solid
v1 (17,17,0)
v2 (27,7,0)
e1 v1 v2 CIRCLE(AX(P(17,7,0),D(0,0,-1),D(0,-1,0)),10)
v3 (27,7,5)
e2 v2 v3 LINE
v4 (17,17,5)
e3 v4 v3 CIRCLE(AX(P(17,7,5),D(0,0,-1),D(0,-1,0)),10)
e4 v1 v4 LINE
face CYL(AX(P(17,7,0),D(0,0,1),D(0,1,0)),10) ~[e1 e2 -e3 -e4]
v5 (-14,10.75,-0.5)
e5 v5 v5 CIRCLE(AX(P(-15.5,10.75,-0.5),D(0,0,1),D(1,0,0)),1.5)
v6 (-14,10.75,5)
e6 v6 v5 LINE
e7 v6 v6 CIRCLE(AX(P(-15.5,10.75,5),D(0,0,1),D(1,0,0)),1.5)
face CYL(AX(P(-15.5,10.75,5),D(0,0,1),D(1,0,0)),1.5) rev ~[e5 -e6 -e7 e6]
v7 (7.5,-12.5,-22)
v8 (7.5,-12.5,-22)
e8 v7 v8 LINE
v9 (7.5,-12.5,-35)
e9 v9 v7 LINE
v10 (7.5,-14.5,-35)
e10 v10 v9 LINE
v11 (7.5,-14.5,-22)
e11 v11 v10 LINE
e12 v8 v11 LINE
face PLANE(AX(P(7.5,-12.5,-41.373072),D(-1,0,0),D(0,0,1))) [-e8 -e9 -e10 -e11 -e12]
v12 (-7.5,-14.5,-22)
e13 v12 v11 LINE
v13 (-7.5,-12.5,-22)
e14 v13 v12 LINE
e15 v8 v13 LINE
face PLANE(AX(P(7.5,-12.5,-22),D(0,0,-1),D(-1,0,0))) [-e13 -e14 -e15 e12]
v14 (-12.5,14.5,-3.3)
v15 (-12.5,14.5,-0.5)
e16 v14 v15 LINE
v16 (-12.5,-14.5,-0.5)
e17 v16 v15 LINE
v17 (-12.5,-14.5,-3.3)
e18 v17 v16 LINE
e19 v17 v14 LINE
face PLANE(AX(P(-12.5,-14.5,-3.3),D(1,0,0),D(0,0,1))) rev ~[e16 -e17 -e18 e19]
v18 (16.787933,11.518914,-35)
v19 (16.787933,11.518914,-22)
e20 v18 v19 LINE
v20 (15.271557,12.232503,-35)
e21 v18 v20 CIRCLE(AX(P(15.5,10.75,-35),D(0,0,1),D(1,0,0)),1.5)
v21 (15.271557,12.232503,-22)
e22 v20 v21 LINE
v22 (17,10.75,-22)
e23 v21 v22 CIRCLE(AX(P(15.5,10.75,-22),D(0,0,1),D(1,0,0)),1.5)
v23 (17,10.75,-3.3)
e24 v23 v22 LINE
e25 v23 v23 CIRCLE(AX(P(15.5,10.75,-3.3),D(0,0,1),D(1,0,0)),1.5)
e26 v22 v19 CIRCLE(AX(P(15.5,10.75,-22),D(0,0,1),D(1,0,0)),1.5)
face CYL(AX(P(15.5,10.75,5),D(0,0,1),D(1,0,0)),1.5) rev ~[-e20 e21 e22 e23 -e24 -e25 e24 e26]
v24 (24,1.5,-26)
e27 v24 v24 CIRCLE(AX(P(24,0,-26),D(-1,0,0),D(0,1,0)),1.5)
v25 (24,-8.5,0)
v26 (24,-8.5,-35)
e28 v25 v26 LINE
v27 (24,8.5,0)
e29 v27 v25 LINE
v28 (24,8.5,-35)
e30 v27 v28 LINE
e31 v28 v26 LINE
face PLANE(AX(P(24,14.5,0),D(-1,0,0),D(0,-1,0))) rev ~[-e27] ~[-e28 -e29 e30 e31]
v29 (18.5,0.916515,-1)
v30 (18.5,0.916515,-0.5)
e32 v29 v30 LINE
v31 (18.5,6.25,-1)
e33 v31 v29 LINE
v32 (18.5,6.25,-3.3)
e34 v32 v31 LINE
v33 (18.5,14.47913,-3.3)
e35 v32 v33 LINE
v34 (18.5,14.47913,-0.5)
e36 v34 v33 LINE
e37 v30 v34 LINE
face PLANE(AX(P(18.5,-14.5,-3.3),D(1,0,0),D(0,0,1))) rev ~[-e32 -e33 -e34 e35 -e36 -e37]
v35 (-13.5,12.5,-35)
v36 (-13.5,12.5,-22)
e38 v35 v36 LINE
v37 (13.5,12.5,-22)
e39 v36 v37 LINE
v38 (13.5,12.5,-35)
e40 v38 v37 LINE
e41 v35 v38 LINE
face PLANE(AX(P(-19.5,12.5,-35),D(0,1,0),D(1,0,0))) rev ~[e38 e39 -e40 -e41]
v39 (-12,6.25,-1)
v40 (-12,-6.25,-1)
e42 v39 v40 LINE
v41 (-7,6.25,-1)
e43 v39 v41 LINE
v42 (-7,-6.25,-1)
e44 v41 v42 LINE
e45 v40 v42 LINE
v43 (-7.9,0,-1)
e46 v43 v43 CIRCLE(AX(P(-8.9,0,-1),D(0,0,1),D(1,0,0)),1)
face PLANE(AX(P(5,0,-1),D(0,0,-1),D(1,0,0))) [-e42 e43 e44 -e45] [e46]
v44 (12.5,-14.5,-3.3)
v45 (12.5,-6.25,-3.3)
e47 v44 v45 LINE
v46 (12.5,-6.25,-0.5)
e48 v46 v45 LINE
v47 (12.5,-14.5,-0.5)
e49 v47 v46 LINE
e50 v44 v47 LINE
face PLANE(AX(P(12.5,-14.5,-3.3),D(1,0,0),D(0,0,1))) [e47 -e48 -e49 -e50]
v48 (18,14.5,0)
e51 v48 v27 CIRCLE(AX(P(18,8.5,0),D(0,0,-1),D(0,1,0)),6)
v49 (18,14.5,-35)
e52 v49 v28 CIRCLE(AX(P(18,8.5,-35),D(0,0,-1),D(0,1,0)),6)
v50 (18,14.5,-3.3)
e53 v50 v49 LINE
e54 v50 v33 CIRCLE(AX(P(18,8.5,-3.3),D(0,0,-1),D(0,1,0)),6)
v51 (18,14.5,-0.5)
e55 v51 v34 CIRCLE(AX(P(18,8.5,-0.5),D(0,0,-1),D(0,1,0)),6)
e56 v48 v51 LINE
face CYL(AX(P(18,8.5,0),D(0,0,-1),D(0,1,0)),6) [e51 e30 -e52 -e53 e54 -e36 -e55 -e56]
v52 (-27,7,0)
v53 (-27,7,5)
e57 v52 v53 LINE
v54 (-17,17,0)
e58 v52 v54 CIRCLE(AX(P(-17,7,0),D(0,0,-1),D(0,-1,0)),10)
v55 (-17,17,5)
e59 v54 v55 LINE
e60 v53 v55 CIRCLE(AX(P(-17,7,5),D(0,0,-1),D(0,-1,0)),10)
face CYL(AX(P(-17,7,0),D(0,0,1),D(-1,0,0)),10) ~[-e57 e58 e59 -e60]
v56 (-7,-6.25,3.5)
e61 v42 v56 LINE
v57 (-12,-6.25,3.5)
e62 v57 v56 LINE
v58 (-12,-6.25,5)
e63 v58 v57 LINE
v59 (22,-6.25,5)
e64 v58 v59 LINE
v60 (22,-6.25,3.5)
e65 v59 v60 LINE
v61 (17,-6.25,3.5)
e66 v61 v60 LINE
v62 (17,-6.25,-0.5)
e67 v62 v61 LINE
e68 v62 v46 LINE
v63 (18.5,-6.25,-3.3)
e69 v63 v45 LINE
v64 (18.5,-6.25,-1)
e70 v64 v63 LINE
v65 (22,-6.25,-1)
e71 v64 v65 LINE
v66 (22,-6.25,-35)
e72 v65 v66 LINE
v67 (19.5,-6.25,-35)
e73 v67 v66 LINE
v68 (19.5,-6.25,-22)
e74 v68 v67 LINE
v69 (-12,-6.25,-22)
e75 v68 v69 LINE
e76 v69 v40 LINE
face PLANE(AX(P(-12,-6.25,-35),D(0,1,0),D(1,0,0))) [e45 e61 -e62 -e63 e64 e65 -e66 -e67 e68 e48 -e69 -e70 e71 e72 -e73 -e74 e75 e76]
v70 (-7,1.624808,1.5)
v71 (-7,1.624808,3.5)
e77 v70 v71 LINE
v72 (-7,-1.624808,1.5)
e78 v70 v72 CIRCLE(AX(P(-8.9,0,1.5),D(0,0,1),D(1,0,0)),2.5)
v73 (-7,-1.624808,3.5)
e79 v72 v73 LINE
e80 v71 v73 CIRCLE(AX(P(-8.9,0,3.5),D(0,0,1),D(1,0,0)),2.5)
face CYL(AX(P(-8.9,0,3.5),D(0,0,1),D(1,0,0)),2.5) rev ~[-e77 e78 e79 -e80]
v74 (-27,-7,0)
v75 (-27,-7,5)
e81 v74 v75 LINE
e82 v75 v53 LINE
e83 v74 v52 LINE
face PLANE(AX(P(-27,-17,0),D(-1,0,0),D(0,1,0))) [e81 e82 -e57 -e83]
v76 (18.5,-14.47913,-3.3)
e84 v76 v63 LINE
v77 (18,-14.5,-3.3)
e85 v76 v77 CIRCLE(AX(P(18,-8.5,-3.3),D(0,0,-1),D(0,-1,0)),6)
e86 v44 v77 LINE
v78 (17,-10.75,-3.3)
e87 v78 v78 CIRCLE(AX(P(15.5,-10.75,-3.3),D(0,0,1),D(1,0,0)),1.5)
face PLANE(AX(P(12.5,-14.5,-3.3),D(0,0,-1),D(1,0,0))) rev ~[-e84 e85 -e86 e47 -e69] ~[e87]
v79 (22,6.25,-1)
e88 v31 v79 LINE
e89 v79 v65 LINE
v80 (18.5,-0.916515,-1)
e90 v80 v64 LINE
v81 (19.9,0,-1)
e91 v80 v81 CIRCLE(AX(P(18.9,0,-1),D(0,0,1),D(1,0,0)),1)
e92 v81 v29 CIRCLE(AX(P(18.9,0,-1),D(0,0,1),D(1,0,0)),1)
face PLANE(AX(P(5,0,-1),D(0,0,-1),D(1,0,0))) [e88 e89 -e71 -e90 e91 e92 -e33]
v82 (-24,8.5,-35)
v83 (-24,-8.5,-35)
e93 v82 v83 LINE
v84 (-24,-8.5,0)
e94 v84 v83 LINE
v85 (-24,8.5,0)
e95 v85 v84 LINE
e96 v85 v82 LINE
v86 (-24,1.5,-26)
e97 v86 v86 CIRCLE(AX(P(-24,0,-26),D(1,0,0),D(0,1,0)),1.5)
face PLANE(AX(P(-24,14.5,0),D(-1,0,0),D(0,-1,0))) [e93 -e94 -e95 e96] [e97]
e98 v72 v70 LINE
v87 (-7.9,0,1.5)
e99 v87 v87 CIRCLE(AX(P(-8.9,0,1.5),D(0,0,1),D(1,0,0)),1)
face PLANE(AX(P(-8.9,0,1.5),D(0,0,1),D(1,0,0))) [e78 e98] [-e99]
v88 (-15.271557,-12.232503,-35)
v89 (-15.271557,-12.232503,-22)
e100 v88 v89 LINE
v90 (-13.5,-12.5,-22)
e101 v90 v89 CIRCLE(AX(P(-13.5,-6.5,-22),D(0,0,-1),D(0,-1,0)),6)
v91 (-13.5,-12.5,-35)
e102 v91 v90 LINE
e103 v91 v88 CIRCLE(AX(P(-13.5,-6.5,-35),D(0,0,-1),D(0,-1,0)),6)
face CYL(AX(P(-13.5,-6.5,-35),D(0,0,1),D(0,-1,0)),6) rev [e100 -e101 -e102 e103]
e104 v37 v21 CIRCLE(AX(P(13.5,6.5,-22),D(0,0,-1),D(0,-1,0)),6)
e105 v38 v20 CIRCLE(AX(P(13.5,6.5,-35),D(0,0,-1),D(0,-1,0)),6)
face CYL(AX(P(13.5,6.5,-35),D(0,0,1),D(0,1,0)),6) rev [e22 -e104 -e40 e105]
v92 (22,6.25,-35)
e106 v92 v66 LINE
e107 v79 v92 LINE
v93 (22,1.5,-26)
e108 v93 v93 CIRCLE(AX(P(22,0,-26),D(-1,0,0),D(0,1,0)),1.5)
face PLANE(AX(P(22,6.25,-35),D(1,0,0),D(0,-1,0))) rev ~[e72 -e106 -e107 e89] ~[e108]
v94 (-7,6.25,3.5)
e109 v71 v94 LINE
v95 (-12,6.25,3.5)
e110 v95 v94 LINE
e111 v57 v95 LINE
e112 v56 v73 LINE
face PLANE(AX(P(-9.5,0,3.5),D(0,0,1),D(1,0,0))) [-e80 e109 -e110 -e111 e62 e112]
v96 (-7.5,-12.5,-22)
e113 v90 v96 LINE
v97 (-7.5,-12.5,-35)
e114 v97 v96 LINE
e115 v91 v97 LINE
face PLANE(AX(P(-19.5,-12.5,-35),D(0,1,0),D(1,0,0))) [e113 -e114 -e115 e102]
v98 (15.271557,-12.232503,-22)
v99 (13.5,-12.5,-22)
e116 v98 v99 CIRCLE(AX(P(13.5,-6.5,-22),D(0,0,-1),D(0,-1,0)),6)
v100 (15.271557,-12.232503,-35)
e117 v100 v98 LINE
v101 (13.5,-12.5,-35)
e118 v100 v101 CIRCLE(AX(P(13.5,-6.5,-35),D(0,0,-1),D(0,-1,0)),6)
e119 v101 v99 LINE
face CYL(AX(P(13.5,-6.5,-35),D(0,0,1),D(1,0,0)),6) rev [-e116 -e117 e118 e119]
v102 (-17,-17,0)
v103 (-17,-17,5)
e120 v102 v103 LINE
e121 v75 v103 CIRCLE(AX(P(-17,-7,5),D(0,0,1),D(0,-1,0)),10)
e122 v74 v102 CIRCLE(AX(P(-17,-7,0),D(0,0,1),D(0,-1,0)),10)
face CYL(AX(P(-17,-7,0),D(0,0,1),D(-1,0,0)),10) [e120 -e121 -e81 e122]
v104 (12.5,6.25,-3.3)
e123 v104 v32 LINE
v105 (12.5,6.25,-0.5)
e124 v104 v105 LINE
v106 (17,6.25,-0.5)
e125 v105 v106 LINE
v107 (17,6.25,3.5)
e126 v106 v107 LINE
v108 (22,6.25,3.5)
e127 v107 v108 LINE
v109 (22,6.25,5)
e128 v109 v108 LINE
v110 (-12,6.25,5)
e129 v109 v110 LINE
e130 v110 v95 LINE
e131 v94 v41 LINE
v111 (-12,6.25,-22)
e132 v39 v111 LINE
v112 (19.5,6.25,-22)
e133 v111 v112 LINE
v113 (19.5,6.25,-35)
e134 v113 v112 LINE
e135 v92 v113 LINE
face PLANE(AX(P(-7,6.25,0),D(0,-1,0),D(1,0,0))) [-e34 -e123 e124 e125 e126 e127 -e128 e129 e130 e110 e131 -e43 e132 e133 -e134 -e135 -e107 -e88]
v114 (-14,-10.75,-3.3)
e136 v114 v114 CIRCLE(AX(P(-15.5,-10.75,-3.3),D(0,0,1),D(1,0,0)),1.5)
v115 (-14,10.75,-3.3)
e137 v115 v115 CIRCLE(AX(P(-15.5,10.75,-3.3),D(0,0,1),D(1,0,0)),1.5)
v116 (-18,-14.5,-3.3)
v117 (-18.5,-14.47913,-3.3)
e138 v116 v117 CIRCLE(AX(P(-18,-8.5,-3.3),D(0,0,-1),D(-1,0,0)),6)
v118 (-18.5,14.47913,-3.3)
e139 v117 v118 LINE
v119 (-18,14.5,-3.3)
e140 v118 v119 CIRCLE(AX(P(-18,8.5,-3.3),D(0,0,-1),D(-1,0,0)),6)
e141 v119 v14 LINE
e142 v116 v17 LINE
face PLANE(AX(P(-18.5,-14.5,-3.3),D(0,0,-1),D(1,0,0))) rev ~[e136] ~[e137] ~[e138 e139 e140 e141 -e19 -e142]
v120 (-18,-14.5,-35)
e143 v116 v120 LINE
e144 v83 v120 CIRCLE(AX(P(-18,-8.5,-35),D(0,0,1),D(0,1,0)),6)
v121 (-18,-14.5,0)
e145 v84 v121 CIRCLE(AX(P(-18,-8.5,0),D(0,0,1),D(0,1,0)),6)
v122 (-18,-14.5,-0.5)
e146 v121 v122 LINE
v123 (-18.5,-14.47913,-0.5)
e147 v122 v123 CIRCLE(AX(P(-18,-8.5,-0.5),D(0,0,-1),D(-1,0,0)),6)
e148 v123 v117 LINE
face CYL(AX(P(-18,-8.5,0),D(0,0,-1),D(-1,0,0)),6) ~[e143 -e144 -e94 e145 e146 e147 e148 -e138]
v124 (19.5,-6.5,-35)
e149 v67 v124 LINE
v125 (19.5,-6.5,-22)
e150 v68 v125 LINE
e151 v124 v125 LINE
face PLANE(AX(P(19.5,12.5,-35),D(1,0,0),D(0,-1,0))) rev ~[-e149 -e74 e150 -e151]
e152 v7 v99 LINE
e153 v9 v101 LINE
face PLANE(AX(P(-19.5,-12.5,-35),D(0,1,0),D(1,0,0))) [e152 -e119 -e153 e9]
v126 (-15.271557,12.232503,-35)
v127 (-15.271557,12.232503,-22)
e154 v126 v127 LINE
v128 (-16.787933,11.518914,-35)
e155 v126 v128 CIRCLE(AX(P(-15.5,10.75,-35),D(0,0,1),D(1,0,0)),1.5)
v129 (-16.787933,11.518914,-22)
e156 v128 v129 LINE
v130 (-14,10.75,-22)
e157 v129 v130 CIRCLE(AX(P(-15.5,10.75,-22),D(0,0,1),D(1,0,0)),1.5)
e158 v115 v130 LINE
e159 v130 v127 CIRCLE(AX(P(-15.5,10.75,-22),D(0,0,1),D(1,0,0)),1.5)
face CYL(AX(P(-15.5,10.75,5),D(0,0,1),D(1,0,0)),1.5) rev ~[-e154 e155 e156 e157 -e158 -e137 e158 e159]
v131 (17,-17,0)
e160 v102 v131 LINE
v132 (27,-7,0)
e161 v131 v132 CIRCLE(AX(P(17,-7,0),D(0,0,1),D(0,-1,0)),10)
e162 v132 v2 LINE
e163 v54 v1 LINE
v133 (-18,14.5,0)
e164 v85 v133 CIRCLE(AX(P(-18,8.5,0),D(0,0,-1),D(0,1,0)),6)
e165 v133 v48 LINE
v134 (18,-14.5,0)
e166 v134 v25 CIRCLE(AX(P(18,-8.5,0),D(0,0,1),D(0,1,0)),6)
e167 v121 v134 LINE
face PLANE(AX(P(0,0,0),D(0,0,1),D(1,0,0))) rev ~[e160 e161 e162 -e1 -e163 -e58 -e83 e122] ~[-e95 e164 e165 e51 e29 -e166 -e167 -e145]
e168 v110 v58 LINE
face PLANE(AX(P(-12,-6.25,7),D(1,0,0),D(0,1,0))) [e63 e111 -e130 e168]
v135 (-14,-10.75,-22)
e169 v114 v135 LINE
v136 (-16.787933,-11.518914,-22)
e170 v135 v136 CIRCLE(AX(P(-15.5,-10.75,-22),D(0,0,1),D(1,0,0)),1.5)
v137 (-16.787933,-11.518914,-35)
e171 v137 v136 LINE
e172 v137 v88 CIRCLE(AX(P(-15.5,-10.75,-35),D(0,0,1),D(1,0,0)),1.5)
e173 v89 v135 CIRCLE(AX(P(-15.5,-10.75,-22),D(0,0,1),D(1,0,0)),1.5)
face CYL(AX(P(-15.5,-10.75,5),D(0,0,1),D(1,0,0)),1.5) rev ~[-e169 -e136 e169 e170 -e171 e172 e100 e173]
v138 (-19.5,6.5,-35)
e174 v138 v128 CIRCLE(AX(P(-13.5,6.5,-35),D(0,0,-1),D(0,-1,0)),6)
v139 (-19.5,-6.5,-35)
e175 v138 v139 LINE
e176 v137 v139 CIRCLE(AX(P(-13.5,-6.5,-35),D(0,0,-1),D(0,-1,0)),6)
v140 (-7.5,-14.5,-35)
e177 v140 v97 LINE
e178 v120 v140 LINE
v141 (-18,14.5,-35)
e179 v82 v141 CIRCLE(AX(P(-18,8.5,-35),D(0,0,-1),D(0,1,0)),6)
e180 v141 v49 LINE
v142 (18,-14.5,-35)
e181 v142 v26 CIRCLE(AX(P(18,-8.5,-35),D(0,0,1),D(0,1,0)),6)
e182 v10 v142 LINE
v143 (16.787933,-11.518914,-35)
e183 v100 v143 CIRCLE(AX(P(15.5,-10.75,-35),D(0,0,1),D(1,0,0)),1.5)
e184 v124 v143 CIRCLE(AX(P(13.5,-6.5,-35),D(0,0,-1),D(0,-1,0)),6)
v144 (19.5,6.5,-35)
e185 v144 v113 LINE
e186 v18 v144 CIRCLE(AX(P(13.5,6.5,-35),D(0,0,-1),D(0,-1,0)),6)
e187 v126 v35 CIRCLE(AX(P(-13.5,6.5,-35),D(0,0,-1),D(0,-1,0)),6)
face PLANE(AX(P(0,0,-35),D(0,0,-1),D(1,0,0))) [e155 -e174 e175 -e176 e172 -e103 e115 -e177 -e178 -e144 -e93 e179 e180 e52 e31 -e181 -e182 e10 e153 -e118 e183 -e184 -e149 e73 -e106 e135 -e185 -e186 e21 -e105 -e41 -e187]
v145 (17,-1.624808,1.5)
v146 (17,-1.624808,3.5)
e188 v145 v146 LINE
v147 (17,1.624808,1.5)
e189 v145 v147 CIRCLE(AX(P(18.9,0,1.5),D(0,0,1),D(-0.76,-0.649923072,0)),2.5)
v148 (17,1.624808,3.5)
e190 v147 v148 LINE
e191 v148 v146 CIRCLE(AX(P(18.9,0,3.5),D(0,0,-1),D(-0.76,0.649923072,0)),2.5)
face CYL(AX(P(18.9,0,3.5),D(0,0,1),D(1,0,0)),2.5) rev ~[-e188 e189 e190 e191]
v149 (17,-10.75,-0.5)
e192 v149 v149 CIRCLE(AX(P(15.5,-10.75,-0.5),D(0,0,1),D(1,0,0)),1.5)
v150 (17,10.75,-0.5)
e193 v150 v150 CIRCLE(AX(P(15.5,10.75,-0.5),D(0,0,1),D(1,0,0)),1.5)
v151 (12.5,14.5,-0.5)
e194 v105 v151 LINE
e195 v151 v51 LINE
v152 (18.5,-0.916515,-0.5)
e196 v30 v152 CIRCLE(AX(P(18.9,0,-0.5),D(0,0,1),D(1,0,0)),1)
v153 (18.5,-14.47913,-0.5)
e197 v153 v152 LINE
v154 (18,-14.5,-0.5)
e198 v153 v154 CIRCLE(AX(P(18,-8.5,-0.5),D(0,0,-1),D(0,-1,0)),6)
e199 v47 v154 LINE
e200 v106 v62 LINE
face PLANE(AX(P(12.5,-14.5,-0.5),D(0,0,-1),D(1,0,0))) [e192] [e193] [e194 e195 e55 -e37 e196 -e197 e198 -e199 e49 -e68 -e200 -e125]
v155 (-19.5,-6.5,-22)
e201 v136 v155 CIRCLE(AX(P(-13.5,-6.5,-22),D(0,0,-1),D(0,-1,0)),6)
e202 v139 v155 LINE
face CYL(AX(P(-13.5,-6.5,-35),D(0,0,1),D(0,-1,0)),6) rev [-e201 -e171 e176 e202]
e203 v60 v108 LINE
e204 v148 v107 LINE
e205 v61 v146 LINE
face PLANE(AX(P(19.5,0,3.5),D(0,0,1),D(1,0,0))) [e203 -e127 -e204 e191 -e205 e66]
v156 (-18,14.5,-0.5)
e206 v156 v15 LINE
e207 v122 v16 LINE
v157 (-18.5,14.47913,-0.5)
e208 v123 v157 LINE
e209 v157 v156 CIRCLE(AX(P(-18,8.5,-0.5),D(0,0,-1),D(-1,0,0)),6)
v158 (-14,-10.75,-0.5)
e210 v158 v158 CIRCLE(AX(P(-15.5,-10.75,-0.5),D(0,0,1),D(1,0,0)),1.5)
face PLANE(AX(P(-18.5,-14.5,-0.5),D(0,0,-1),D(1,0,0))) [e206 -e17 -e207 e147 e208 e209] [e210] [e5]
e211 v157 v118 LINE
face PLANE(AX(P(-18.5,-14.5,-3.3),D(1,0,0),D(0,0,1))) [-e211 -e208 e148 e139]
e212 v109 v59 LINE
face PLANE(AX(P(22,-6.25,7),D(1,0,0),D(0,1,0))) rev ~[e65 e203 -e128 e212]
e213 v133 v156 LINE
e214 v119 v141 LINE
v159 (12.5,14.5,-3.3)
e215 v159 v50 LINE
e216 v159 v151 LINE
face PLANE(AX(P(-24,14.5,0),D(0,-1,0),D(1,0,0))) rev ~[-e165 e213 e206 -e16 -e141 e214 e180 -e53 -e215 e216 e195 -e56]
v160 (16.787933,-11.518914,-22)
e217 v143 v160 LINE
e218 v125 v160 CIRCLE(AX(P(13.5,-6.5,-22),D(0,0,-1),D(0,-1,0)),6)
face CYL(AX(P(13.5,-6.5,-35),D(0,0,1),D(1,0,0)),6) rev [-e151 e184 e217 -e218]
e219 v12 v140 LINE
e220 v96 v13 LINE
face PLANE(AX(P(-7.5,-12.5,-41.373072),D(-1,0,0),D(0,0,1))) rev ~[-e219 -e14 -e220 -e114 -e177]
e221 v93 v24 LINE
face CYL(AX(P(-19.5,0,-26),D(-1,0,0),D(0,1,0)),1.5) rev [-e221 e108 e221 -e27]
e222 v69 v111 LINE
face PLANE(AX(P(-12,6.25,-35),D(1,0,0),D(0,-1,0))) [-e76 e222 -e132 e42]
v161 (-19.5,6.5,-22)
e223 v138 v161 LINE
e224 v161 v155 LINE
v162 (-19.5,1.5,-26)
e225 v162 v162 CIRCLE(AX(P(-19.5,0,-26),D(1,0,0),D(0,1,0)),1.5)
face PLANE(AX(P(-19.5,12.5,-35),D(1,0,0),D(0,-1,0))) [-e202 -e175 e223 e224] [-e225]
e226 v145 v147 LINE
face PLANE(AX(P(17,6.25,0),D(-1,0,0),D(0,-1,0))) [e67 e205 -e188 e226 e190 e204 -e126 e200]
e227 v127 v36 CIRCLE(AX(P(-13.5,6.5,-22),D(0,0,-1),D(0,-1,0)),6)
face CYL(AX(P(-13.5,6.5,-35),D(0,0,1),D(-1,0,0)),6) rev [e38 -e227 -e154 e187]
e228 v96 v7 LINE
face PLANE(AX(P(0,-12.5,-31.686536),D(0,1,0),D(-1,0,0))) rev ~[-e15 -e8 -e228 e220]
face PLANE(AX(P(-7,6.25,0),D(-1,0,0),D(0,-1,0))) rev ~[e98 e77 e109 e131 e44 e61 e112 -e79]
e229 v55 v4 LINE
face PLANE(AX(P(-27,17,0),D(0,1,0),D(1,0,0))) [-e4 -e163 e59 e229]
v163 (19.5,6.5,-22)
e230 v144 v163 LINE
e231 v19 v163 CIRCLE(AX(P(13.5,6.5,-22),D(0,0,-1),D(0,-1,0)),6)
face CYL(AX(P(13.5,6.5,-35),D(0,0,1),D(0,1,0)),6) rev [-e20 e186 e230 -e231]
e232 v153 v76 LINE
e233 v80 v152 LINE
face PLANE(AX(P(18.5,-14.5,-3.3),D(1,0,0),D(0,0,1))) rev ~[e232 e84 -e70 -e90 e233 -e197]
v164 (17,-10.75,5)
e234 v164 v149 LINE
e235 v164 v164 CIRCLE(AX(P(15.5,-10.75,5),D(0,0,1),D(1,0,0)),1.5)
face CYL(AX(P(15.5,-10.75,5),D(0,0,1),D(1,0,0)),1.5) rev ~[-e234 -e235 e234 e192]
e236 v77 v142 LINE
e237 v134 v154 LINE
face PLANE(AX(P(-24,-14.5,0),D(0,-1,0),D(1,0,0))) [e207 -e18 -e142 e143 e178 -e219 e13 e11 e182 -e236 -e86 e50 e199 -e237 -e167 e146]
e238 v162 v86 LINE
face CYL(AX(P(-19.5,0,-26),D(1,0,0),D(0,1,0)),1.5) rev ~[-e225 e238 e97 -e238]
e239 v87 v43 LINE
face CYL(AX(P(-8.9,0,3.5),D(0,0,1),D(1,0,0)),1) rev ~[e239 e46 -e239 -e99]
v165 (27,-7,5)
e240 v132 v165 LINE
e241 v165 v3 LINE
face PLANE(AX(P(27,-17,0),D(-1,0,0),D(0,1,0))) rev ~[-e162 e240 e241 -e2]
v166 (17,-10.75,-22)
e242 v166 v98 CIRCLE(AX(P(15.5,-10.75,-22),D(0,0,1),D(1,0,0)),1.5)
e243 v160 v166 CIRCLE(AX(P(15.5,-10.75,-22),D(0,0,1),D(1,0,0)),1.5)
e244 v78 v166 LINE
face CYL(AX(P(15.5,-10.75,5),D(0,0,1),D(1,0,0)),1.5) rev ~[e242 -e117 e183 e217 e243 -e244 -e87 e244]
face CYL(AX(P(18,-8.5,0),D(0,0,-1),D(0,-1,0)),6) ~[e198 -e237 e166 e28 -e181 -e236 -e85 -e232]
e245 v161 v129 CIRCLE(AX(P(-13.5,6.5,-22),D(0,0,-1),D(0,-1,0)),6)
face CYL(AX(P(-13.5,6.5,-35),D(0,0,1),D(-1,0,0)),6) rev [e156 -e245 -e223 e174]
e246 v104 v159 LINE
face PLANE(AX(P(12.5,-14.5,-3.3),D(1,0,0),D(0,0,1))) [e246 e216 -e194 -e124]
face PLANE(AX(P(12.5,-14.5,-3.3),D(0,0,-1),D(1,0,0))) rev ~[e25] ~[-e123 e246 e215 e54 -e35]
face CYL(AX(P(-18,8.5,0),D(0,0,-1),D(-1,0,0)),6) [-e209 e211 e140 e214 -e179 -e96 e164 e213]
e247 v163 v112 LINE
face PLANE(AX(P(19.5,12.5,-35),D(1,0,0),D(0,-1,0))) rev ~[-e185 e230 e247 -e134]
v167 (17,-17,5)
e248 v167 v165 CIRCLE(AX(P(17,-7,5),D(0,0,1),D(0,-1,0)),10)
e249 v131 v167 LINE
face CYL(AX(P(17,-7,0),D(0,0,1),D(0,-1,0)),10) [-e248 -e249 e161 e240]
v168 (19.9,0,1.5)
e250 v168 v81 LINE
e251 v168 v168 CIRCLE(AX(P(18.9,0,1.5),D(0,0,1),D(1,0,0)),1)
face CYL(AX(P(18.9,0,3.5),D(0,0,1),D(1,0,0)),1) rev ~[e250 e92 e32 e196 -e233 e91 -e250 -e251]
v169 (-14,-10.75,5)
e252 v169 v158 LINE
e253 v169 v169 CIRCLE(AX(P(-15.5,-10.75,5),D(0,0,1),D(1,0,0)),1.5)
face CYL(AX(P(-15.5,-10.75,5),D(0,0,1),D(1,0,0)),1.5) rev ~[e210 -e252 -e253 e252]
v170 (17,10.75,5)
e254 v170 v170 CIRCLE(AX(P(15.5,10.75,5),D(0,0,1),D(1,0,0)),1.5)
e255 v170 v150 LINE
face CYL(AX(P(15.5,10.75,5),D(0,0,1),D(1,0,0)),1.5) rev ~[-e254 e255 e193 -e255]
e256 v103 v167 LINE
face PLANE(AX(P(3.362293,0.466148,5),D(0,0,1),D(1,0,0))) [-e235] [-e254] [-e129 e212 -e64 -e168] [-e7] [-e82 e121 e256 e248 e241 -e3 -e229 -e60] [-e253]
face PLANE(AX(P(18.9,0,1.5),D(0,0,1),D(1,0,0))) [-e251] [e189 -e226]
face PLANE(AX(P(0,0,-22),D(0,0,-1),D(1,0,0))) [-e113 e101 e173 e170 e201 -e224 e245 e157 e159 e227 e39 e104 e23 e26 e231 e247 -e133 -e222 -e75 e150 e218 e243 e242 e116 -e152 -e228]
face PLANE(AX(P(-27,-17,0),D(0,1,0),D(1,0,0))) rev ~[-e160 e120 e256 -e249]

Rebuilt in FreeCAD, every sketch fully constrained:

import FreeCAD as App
import Part
import Sketcher

V = App.Vector


def edges_at(feature, points):
    """Names of the edges that pass closest to the given points."""
    edges = feature.Shape.Edges
    near = lambda p: min(range(len(edges)), key=lambda i: edges[i].distToShape(Part.Vertex(*p))[0])
    return sorted({f"Edge{near(p) + 1}" for p in points})

doc = App.newDocument("Part")
params = doc.addObject("Spreadsheet::Sheet", "Params")
for row, (alias, value) in enumerate([
    ("sketch1_width", "54 mm"),
    ("sketch1_width2", "24 mm"),
    ("sketch1_height", "34 mm"),
    ("sketch1_height2", "12.5 mm"),
    ("pad1_length", "7 mm"),
    ("sketch2_width", "5 mm"),
    ("sketch2_height", "12.5 mm"),
    ("pocket1_length", "3.5 mm"),
    ("sketch3_width", "48 mm"),
    ("sketch3_width2", "24 mm"),
    ("sketch3_height", "29 mm"),
    ("sketch3_height2", "12.5 mm"),
    ("pad2_length", "35 mm"),
    ("sketch4_diameter", "2 mm"),
    ("sketch5_width", "34 mm"),
    ("sketch5_height", "12.5 mm"),
    ("pocket3_length", "30 mm"),
    ("sketch6_width", "39 mm"),
    ("sketch6_height", "25 mm"),
    ("pocket4_length", "13 mm"),
    ("fillet_radius", "6 mm"),
    ("sketch7_diameter", "3 mm"),
    ("pocket6_length", "2 mm"),
    ("sketch9_width", "34 mm"),
    ("sketch9_height", "12.5 mm"),
    ("pocket7_length", "4 mm"),
    ("sketch10_width", "15 mm"),
    ("pocket8_length", "5 mm"),
    ("sketch11_diameter", "3 mm"),
    ("sketch12_width", "6 mm"),
    ("sketch12_height", "2.8 mm"),
    ("fillet2_radius", "10 mm"),
    ("sketch13_diameter", "5 mm"),
    ("pocket11_length", "2 mm"),
], start=1):
    params.set(f"A{row}", alias)
    params.set(f"B{row}", "=" + value)
    params.setAlias(f"B{row}", alias)

body = doc.addObject("PartDesign::Body", "Body")

# Sketch on XY plane
sketch1 = body.newObject("Sketcher::SketchObject", "Sketch")
sketch1.AttachmentSupport = (doc.getObject("XY_Plane"), [""])
sketch1.MapMode = "FlatFace"
sketch1.addGeometry(Part.LineSegment(V(-27, 17, 0), V(-27, -17, 0)), False)
sketch1.addGeometry(Part.LineSegment(V(-27, -17, 0), V(27, -17, 0)), False)
sketch1.addGeometry(Part.LineSegment(V(27, -17, 0), V(27, 17, 0)), False)
sketch1.addGeometry(Part.LineSegment(V(27, 17, 0), V(-27, 17, 0)), False)
sketch1.addGeometry(Part.LineSegment(V(17, -6.25, 0), V(-7, -6.25, 0)), False)
sketch1.addGeometry(Part.LineSegment(V(-7, -6.25, 0), V(-7, 6.25, 0)), False)
sketch1.addGeometry(Part.LineSegment(V(-7, 6.25, 0), V(17, 6.25, 0)), False)
sketch1.addGeometry(Part.LineSegment(V(17, 6.25, 0), V(17, -6.25, 0)), False)
sketch1.addConstraint(Sketcher.Constraint("Coincident", 0, 2, 1, 1))
sketch1.addConstraint(Sketcher.Constraint("Coincident", 1, 2, 2, 1))
sketch1.addConstraint(Sketcher.Constraint("Coincident", 2, 2, 3, 1))
sketch1.addConstraint(Sketcher.Constraint("Coincident", 3, 2, 0, 1))
sketch1.addConstraint(Sketcher.Constraint("Coincident", 4, 2, 5, 1))
sketch1.addConstraint(Sketcher.Constraint("Coincident", 5, 2, 6, 1))
sketch1.addConstraint(Sketcher.Constraint("Coincident", 6, 2, 7, 1))
sketch1.addConstraint(Sketcher.Constraint("Coincident", 7, 2, 4, 1))
sketch1.addConstraint(Sketcher.Constraint("Vertical", 0))
sketch1.addConstraint(Sketcher.Constraint("Horizontal", 1))
sketch1.addConstraint(Sketcher.Constraint("Vertical", 2))
sketch1.addConstraint(Sketcher.Constraint("Horizontal", 3))
sketch1.addConstraint(Sketcher.Constraint("Horizontal", 4))
sketch1.addConstraint(Sketcher.Constraint("Vertical", 5))
sketch1.addConstraint(Sketcher.Constraint("Horizontal", 6))
sketch1.addConstraint(Sketcher.Constraint("Vertical", 7))
sketch1.addConstraint(Sketcher.Constraint("Symmetric", 0, 2, 2, 2, -1, 1))
sketch1.addConstraint(Sketcher.Constraint("DistanceX", 1, 1, 1, 2, 54.0))
sketch1.addConstraint(Sketcher.Constraint("DistanceX", 4, 2, 4, 1, 24.0))
sketch1.addConstraint(Sketcher.Constraint("DistanceY", 0, 2, 0, 1, 34.0))
sketch1.addConstraint(Sketcher.Constraint("DistanceY", 5, 1, 5, 2, 12.5))
sketch1.addConstraint(Sketcher.Constraint("DistanceX", 4, 2, -1, 1, 7.0))
sketch1.addConstraint(Sketcher.Constraint("DistanceY", 4, 2, -1, 1, 6.25))
sketch1.setExpression("Constraints[17]", "Params.sketch1_width")
sketch1.setExpression("Constraints[18]", "Params.sketch1_width2")
sketch1.setExpression("Constraints[19]", "Params.sketch1_height")
sketch1.setExpression("Constraints[20]", "Params.sketch1_height2")
pad1 = body.newObject("PartDesign::Pad", "Pad")
pad1.Profile = sketch1
pad1.setExpression("Length", "Params.pad1_length")

# Sketch on XY plane
sketch2 = body.newObject("Sketcher::SketchObject", "Sketch001")
sketch2.AttachmentSupport = (doc.getObject("XY_Plane"), [""])
sketch2.MapMode = "FlatFace"
sketch2.AttachmentOffset = App.Placement(V(0, 0, 7), App.Rotation())
sketch2.addGeometry(Part.LineSegment(V(-12, 6.25, 0), V(-12, -6.25, 0)), False)
sketch2.addGeometry(Part.LineSegment(V(-12, -6.25, 0), V(-7, -6.25, 0)), False)
sketch2.addGeometry(Part.LineSegment(V(-7, -6.25, 0), V(-7, 6.25, 0)), False)
sketch2.addGeometry(Part.LineSegment(V(-7, 6.25, 0), V(-12, 6.25, 0)), False)
sketch2.addGeometry(Part.LineSegment(V(17, 6.25, 0), V(17, -6.25, 0)), False)
sketch2.addGeometry(Part.LineSegment(V(17, -6.25, 0), V(22, -6.25, 0)), False)
sketch2.addGeometry(Part.LineSegment(V(22, -6.25, 0), V(22, 6.25, 0)), False)
sketch2.addGeometry(Part.LineSegment(V(22, 6.25, 0), V(17, 6.25, 0)), False)
sketch2.addConstraint(Sketcher.Constraint("Coincident", 0, 2, 1, 1))
sketch2.addConstraint(Sketcher.Constraint("Coincident", 1, 2, 2, 1))
sketch2.addConstraint(Sketcher.Constraint("Coincident", 2, 2, 3, 1))
sketch2.addConstraint(Sketcher.Constraint("Coincident", 3, 2, 0, 1))
sketch2.addConstraint(Sketcher.Constraint("Coincident", 4, 2, 5, 1))
sketch2.addConstraint(Sketcher.Constraint("Coincident", 5, 2, 6, 1))
sketch2.addConstraint(Sketcher.Constraint("Coincident", 6, 2, 7, 1))
sketch2.addConstraint(Sketcher.Constraint("Coincident", 7, 2, 4, 1))
sketch2.addConstraint(Sketcher.Constraint("Vertical", 0))
sketch2.addConstraint(Sketcher.Constraint("Horizontal", 1))
sketch2.addConstraint(Sketcher.Constraint("Vertical", 2))
sketch2.addConstraint(Sketcher.Constraint("Horizontal", 3))
sketch2.addConstraint(Sketcher.Constraint("Vertical", 4))
sketch2.addConstraint(Sketcher.Constraint("Horizontal", 5))
sketch2.addConstraint(Sketcher.Constraint("Vertical", 6))
sketch2.addConstraint(Sketcher.Constraint("Horizontal", 7))
sketch2.addConstraint(Sketcher.Constraint("Horizontal", 1, 2, 4, 2))
sketch2.addConstraint(Sketcher.Constraint("Horizontal", 3, 2, 6, 2))
sketch2.addConstraint(Sketcher.Constraint("Equal", 3, 5))
sketch2.addConstraint(Sketcher.Constraint("DistanceX", 1, 1, 1, 2, 5.0))
sketch2.addConstraint(Sketcher.Constraint("DistanceY", 0, 2, 0, 1, 12.5))
sketch2.addConstraint(Sketcher.Constraint("DistanceX", 0, 2, -1, 1, 12.0))
sketch2.addConstraint(Sketcher.Constraint("DistanceX", -1, 1, 4, 2, 17.0))
sketch2.addConstraint(Sketcher.Constraint("DistanceY", 0, 2, -1, 1, 6.25))
sketch2.setExpression("Constraints[19]", "Params.sketch2_width")
sketch2.setExpression("Constraints[20]", "Params.sketch2_height")
pocket1 = body.newObject("PartDesign::Pocket", "Pocket")
pocket1.Profile = sketch2
pocket1.setExpression("Length", "Params.pocket1_length")

# Sketch on XY plane
sketch3 = body.newObject("Sketcher::SketchObject", "Sketch002")
sketch3.AttachmentSupport = (doc.getObject("XY_Plane"), [""])
sketch3.MapMode = "FlatFace"
sketch3.addGeometry(Part.LineSegment(V(-24, -14.5, 0), V(-24, 14.5, 0)), False)
sketch3.addGeometry(Part.LineSegment(V(-24, 14.5, 0), V(24, 14.5, 0)), False)
sketch3.addGeometry(Part.LineSegment(V(24, 14.5, 0), V(24, -14.5, 0)), False)
sketch3.addGeometry(Part.LineSegment(V(24, -14.5, 0), V(-24, -14.5, 0)), False)
sketch3.addGeometry(Part.LineSegment(V(17, 6.25, 0), V(-7, 6.25, 0)), False)
sketch3.addGeometry(Part.LineSegment(V(-7, 6.25, 0), V(-7, -6.25, 0)), False)
sketch3.addGeometry(Part.LineSegment(V(-7, -6.25, 0), V(17, -6.25, 0)), False)
sketch3.addGeometry(Part.LineSegment(V(17, -6.25, 0), V(17, 6.25, 0)), False)
sketch3.addConstraint(Sketcher.Constraint("Coincident", 0, 2, 1, 1))
sketch3.addConstraint(Sketcher.Constraint("Coincident", 1, 2, 2, 1))
sketch3.addConstraint(Sketcher.Constraint("Coincident", 2, 2, 3, 1))
sketch3.addConstraint(Sketcher.Constraint("Coincident", 3, 2, 0, 1))
sketch3.addConstraint(Sketcher.Constraint("Coincident", 4, 2, 5, 1))
sketch3.addConstraint(Sketcher.Constraint("Coincident", 5, 2, 6, 1))
sketch3.addConstraint(Sketcher.Constraint("Coincident", 6, 2, 7, 1))
sketch3.addConstraint(Sketcher.Constraint("Coincident", 7, 2, 4, 1))
sketch3.addConstraint(Sketcher.Constraint("Vertical", 0))
sketch3.addConstraint(Sketcher.Constraint("Horizontal", 1))
sketch3.addConstraint(Sketcher.Constraint("Vertical", 2))
sketch3.addConstraint(Sketcher.Constraint("Horizontal", 3))
sketch3.addConstraint(Sketcher.Constraint("Horizontal", 4))
sketch3.addConstraint(Sketcher.Constraint("Vertical", 5))
sketch3.addConstraint(Sketcher.Constraint("Horizontal", 6))
sketch3.addConstraint(Sketcher.Constraint("Vertical", 7))
sketch3.addConstraint(Sketcher.Constraint("Symmetric", 0, 2, 2, 2, -1, 1))
sketch3.addConstraint(Sketcher.Constraint("DistanceX", 1, 1, 1, 2, 48.0))
sketch3.addConstraint(Sketcher.Constraint("DistanceX", 4, 2, 4, 1, 24.0))
sketch3.addConstraint(Sketcher.Constraint("DistanceY", 0, 1, 0, 2, 29.0))
sketch3.addConstraint(Sketcher.Constraint("DistanceY", 5, 2, 5, 1, 12.5))
sketch3.addConstraint(Sketcher.Constraint("DistanceX", 4, 2, -1, 1, 7.0))
sketch3.addConstraint(Sketcher.Constraint("DistanceY", -1, 1, 4, 2, 6.25))
sketch3.setExpression("Constraints[17]", "Params.sketch3_width")
sketch3.setExpression("Constraints[18]", "Params.sketch3_width2")
sketch3.setExpression("Constraints[19]", "Params.sketch3_height")
sketch3.setExpression("Constraints[20]", "Params.sketch3_height2")
pad2 = body.newObject("PartDesign::Pad", "Pad001")
pad2.Profile = sketch3
pad2.setExpression("Length", "Params.pad2_length")
pad2.Reversed = True

# Sketch on XY plane
sketch4 = body.newObject("Sketcher::SketchObject", "Sketch003")
sketch4.AttachmentSupport = (doc.getObject("XY_Plane"), [""])
sketch4.MapMode = "FlatFace"
sketch4.AttachmentOffset = App.Placement(V(0, 0, 3.5), App.Rotation())
sketch4.addGeometry(Part.Circle(V(-8.9, 0, 0), V(0, 0, 1), 1), False)
sketch4.addGeometry(Part.Circle(V(18.9, 0, 0), V(0, 0, 1), 1), False)
sketch4.addConstraint(Sketcher.Constraint("Equal", 0, 1))
sketch4.addConstraint(Sketcher.Constraint("PointOnObject", 0, 3, -1))
sketch4.addConstraint(Sketcher.Constraint("PointOnObject", 1, 3, -1))
sketch4.addConstraint(Sketcher.Constraint("Diameter", 0, 2.0))
sketch4.addConstraint(Sketcher.Constraint("DistanceX", 0, 3, -1, 1, 8.9))
sketch4.addConstraint(Sketcher.Constraint("DistanceX", -1, 1, 1, 3, 18.9))
sketch4.setExpression("Constraints[3]", "Params.sketch4_diameter")
pocket2 = body.newObject("PartDesign::Pocket", "Pocket001")
pocket2.Profile = sketch4
pocket2.Type = "ThroughAll"

# Sketch on XY plane
sketch5 = body.newObject("Sketcher::SketchObject", "Sketch004")
sketch5.AttachmentSupport = (doc.getObject("XY_Plane"), [""])
sketch5.MapMode = "FlatFace"
sketch5.AttachmentOffset = App.Placement(V(0, 0, -35), App.Rotation())
sketch5.addGeometry(Part.LineSegment(V(-12, -6.25, 0), V(-12, 6.25, 0)), False)
sketch5.addGeometry(Part.LineSegment(V(-12, 6.25, 0), V(22, 6.25, 0)), False)
sketch5.addGeometry(Part.LineSegment(V(22, 6.25, 0), V(22, -6.25, 0)), False)
sketch5.addGeometry(Part.LineSegment(V(22, -6.25, 0), V(-12, -6.25, 0)), False)
sketch5.addConstraint(Sketcher.Constraint("Coincident", 0, 2, 1, 1))
sketch5.addConstraint(Sketcher.Constraint("Coincident", 1, 2, 2, 1))
sketch5.addConstraint(Sketcher.Constraint("Coincident", 2, 2, 3, 1))
sketch5.addConstraint(Sketcher.Constraint("Coincident", 3, 2, 0, 1))
sketch5.addConstraint(Sketcher.Constraint("Vertical", 0))
sketch5.addConstraint(Sketcher.Constraint("Horizontal", 1))
sketch5.addConstraint(Sketcher.Constraint("Vertical", 2))
sketch5.addConstraint(Sketcher.Constraint("Horizontal", 3))
sketch5.addConstraint(Sketcher.Constraint("DistanceX", 1, 1, 1, 2, 34.0))
sketch5.addConstraint(Sketcher.Constraint("DistanceY", 0, 1, 0, 2, 12.5))
sketch5.addConstraint(Sketcher.Constraint("DistanceX", 0, 2, -1, 1, 12.0))
sketch5.addConstraint(Sketcher.Constraint("DistanceY", -1, 1, 0, 2, 6.25))
sketch5.setExpression("Constraints[8]", "Params.sketch5_width")
sketch5.setExpression("Constraints[9]", "Params.sketch5_height")
pocket3 = body.newObject("PartDesign::Pocket", "Pocket002")
pocket3.Profile = sketch5
pocket3.setExpression("Length", "Params.pocket3_length")
pocket3.Reversed = True

# Sketch on XY plane
sketch6 = body.newObject("Sketcher::SketchObject", "Sketch005")
sketch6.AttachmentSupport = (doc.getObject("XY_Plane"), [""])
sketch6.MapMode = "FlatFace"
sketch6.AttachmentOffset = App.Placement(V(0, 0, -35), App.Rotation())
sketch6.addGeometry(Part.LineSegment(V(-19.5, -12.5, 0), V(-19.5, 12.5, 0)), False)
sketch6.addGeometry(Part.LineSegment(V(-19.5, 12.5, 0), V(19.5, 12.5, 0)), False)
sketch6.addGeometry(Part.LineSegment(V(19.5, 12.5, 0), V(19.5, -12.5, 0)), False)
sketch6.addGeometry(Part.LineSegment(V(19.5, -12.5, 0), V(-19.5, -12.5, 0)), False)
sketch6.addConstraint(Sketcher.Constraint("Coincident", 0, 2, 1, 1))
sketch6.addConstraint(Sketcher.Constraint("Coincident", 1, 2, 2, 1))
sketch6.addConstraint(Sketcher.Constraint("Coincident", 2, 2, 3, 1))
sketch6.addConstraint(Sketcher.Constraint("Coincident", 3, 2, 0, 1))
sketch6.addConstraint(Sketcher.Constraint("Vertical", 0))
sketch6.addConstraint(Sketcher.Constraint("Horizontal", 1))
sketch6.addConstraint(Sketcher.Constraint("Vertical", 2))
sketch6.addConstraint(Sketcher.Constraint("Horizontal", 3))
sketch6.addConstraint(Sketcher.Constraint("Symmetric", 0, 2, 2, 2, -1, 1))
sketch6.addConstraint(Sketcher.Constraint("DistanceX", 1, 1, 1, 2, 39.0))
sketch6.addConstraint(Sketcher.Constraint("DistanceY", 0, 1, 0, 2, 25.0))
sketch6.setExpression("Constraints[9]", "Params.sketch6_width")
sketch6.setExpression("Constraints[10]", "Params.sketch6_height")
pocket4 = body.newObject("PartDesign::Pocket", "Pocket003")
pocket4.Profile = sketch6
pocket4.setExpression("Length", "Params.pocket4_length")
pocket4.Reversed = True
doc.recompute()

fillet = body.newObject("PartDesign::Fillet", "Fillet")
fillet.Base = (pocket4, edges_at(pocket4, [
    (-19.5, -12.5, -28.5),
    (19.5, -12.5, -28.5),
    (19.5, 12.5, -28.5),
    (-19.5, 12.5, -28.5),
    (-24, -14.5, -17.5),
    (-24, 14.5, -17.5),
    (24, -14.5, -17.5),
    (24, 14.5, -17.5),
]))
fillet.setExpression("Radius", "Params.fillet_radius")

# Sketch on YZ plane
sketch7 = body.newObject("Sketcher::SketchObject", "Sketch006")
sketch7.AttachmentSupport = (doc.getObject("YZ_Plane"), [""])
sketch7.MapMode = "FlatFace"
sketch7.AttachmentOffset = App.Placement(V(0, 0, -19.5), App.Rotation())
sketch7.addGeometry(Part.Circle(V(0, -26, 0), V(0, 0, 1), 1.5), False)
sketch7.addConstraint(Sketcher.Constraint("PointOnObject", 0, 3, -2))
sketch7.addConstraint(Sketcher.Constraint("Diameter", 0, 3.0))
sketch7.addConstraint(Sketcher.Constraint("DistanceY", 0, 3, -1, 1, 26.0))
sketch7.setExpression("Constraints[1]", "Params.sketch7_diameter")
pocket5 = body.newObject("PartDesign::Pocket", "Pocket004")
pocket5.Profile = sketch7
pocket5.Type = "ThroughAll"
pocket5.Midplane = True

# Sketch on XY plane
sketch8 = body.newObject("Sketcher::SketchObject", "Sketch007")
sketch8.AttachmentSupport = (doc.getObject("XY_Plane"), [""])
sketch8.MapMode = "FlatFace"
sketch8.AttachmentOffset = App.Placement(V(0, 0, 7), App.Rotation())
sketch8.addGeometry(Part.LineSegment(V(-36.188198, 26.145854, 0), V(-36.188198, -25.213559, 0)), False)
sketch8.addGeometry(Part.LineSegment(V(-36.188198, -25.213559, 0), V(42.912785, -25.213559, 0)), False)
sketch8.addGeometry(Part.LineSegment(V(42.912785, -25.213559, 0), V(42.912785, 26.145854, 0)), False)
sketch8.addGeometry(Part.LineSegment(V(42.912785, 26.145854, 0), V(-36.188198, 26.145854, 0)), False)
sketch8.addConstraint(Sketcher.Constraint("Coincident", 0, 2, 1, 1))
sketch8.addConstraint(Sketcher.Constraint("Coincident", 1, 2, 2, 1))
sketch8.addConstraint(Sketcher.Constraint("Coincident", 2, 2, 3, 1))
sketch8.addConstraint(Sketcher.Constraint("Coincident", 3, 2, 0, 1))
sketch8.addConstraint(Sketcher.Constraint("Vertical", 0))
sketch8.addConstraint(Sketcher.Constraint("Horizontal", 1))
sketch8.addConstraint(Sketcher.Constraint("Vertical", 2))
sketch8.addConstraint(Sketcher.Constraint("Horizontal", 3))
sketch8.addConstraint(Sketcher.Constraint("DistanceX", 0, 2, -1, 1, 36.188198))
sketch8.addConstraint(Sketcher.Constraint("DistanceX", 1, 1, 1, 2, 79.100983))
sketch8.addConstraint(Sketcher.Constraint("DistanceY", 0, 2, 0, 1, 51.359413))
sketch8.addConstraint(Sketcher.Constraint("DistanceY", 0, 2, -1, 1, 25.213559))
pocket6 = body.newObject("PartDesign::Pocket", "Pocket005")
pocket6.Profile = sketch8
pocket6.setExpression("Length", "Params.pocket6_length")

# Sketch on XY plane
sketch9 = body.newObject("Sketcher::SketchObject", "Sketch008")
sketch9.AttachmentSupport = (doc.getObject("XY_Plane"), [""])
sketch9.MapMode = "FlatFace"
sketch9.AttachmentOffset = App.Placement(V(0, 0, -5), App.Rotation())
sketch9.addGeometry(Part.LineSegment(V(-12, -6.25, 0), V(-12, 6.25, 0)), False)
sketch9.addGeometry(Part.LineSegment(V(-12, 6.25, 0), V(22, 6.25, 0)), False)
sketch9.addGeometry(Part.LineSegment(V(22, 6.25, 0), V(22, -6.25, 0)), False)
sketch9.addGeometry(Part.LineSegment(V(22, -6.25, 0), V(-12, -6.25, 0)), False)
sketch9.addConstraint(Sketcher.Constraint("Coincident", 0, 2, 1, 1))
sketch9.addConstraint(Sketcher.Constraint("Coincident", 1, 2, 2, 1))
sketch9.addConstraint(Sketcher.Constraint("Coincident", 2, 2, 3, 1))
sketch9.addConstraint(Sketcher.Constraint("Coincident", 3, 2, 0, 1))
sketch9.addConstraint(Sketcher.Constraint("Vertical", 0))
sketch9.addConstraint(Sketcher.Constraint("Horizontal", 1))
sketch9.addConstraint(Sketcher.Constraint("Vertical", 2))
sketch9.addConstraint(Sketcher.Constraint("Horizontal", 3))
sketch9.addConstraint(Sketcher.Constraint("DistanceX", 1, 1, 1, 2, 34.0))
sketch9.addConstraint(Sketcher.Constraint("DistanceY", 0, 1, 0, 2, 12.5))
sketch9.addConstraint(Sketcher.Constraint("DistanceX", 0, 2, -1, 1, 12.0))
sketch9.addConstraint(Sketcher.Constraint("DistanceY", -1, 1, 0, 2, 6.25))
sketch9.setExpression("Constraints[8]", "Params.sketch9_width")
sketch9.setExpression("Constraints[9]", "Params.sketch9_height")
pocket7 = body.newObject("PartDesign::Pocket", "Pocket006")
pocket7.Profile = sketch9
pocket7.setExpression("Length", "Params.pocket7_length")
pocket7.Reversed = True

# Sketch on XZ plane
sketch10 = body.newObject("Sketcher::SketchObject", "Sketch009")
sketch10.AttachmentSupport = (doc.getObject("XZ_Plane"), [""])
sketch10.MapMode = "FlatFace"
sketch10.AttachmentOffset = App.Placement(V(0, 0, 12.5), App.Rotation())
sketch10.addGeometry(Part.LineSegment(V(7.5, -22, 0), V(7.5, -41.373072, 0)), False)
sketch10.addGeometry(Part.LineSegment(V(7.5, -41.373072, 0), V(-7.5, -41.373072, 0)), False)
sketch10.addGeometry(Part.LineSegment(V(-7.5, -41.373072, 0), V(-7.5, -22, 0)), False)
sketch10.addGeometry(Part.LineSegment(V(-7.5, -22, 0), V(7.5, -22, 0)), False)
sketch10.addConstraint(Sketcher.Constraint("Coincident", 0, 2, 1, 1))
sketch10.addConstraint(Sketcher.Constraint("Coincident", 1, 2, 2, 1))
sketch10.addConstraint(Sketcher.Constraint("Coincident", 2, 2, 3, 1))
sketch10.addConstraint(Sketcher.Constraint("Coincident", 3, 2, 0, 1))
sketch10.addConstraint(Sketcher.Constraint("Vertical", 0))
sketch10.addConstraint(Sketcher.Constraint("Horizontal", 1))
sketch10.addConstraint(Sketcher.Constraint("Vertical", 2))
sketch10.addConstraint(Sketcher.Constraint("Horizontal", 3))
sketch10.addConstraint(Sketcher.Constraint("DistanceX", 1, 2, 1, 1, 15.0))
sketch10.addConstraint(Sketcher.Constraint("DistanceY", 2, 2, -1, 1, 22.0))
sketch10.addConstraint(Sketcher.Constraint("DistanceX", -1, 1, 0, 2, 7.5))
sketch10.addConstraint(Sketcher.Constraint("DistanceY", 0, 2, 0, 1, 19.373073))
sketch10.setExpression("Constraints[8]", "Params.sketch10_width")
pocket8 = body.newObject("PartDesign::Pocket", "Pocket007")
pocket8.Profile = sketch10
pocket8.setExpression("Length", "Params.pocket8_length")
pocket8.Reversed = True

# Sketch on XY plane
sketch11 = body.newObject("Sketcher::SketchObject", "Sketch010")
sketch11.AttachmentSupport = (doc.getObject("XY_Plane"), [""])
sketch11.MapMode = "FlatFace"
sketch11.AttachmentOffset = App.Placement(V(0, 0, 5), App.Rotation())
sketch11.addGeometry(Part.Circle(V(-15.5, 10.75, 0), V(0, 0, 1), 1.5), False)
sketch11.addGeometry(Part.Circle(V(15.5, 10.75, 0), V(0, 0, 1), 1.5), False)
sketch11.addGeometry(Part.Circle(V(-15.5, -10.75, 0), V(0, 0, 1), 1.5), False)
sketch11.addGeometry(Part.Circle(V(15.5, -10.75, 0), V(0, 0, 1), 1.5), False)
sketch11.addConstraint(Sketcher.Constraint("Equal", 0, 1))
sketch11.addConstraint(Sketcher.Constraint("Equal", 1, 2))
sketch11.addConstraint(Sketcher.Constraint("Equal", 2, 3))
sketch11.addConstraint(Sketcher.Constraint("Symmetric", 1, 3, 2, 3, -1, 1))
sketch11.addConstraint(Sketcher.Constraint("Symmetric", 0, 3, 3, 3, -1, 1))
sketch11.addConstraint(Sketcher.Constraint("Symmetric", 0, 3, 1, 3, -2))
sketch11.addConstraint(Sketcher.Constraint("Diameter", 0, 3.0))
sketch11.addConstraint(Sketcher.Constraint("DistanceX", 0, 3, 1, 3, 31.0))
sketch11.addConstraint(Sketcher.Constraint("DistanceY", 2, 3, 0, 3, 21.5))
sketch11.setExpression("Constraints[6]", "Params.sketch11_diameter")
pocket9 = body.newObject("PartDesign::Pocket", "Pocket008")
pocket9.Profile = sketch11
pocket9.Type = "ThroughAll"

# Sketch on XZ plane
sketch12 = body.newObject("Sketcher::SketchObject", "Sketch011")
sketch12.AttachmentSupport = (doc.getObject("XZ_Plane"), [""])
sketch12.MapMode = "FlatFace"
sketch12.AttachmentOffset = App.Placement(V(0, 0, 14.5), App.Rotation())
sketch12.addGeometry(Part.LineSegment(V(-18.5, -0.5, 0), V(-18.5, -3.3, 0)), False)
sketch12.addGeometry(Part.LineSegment(V(-18.5, -3.3, 0), V(-12.5, -3.3, 0)), False)
sketch12.addGeometry(Part.LineSegment(V(-12.5, -3.3, 0), V(-12.5, -0.5, 0)), False)
sketch12.addGeometry(Part.LineSegment(V(-12.5, -0.5, 0), V(-18.5, -0.5, 0)), False)
sketch12.addGeometry(Part.LineSegment(V(12.5, -0.5, 0), V(12.5, -3.3, 0)), False)
sketch12.addGeometry(Part.LineSegment(V(12.5, -3.3, 0), V(18.5, -3.3, 0)), False)
sketch12.addGeometry(Part.LineSegment(V(18.5, -3.3, 0), V(18.5, -0.5, 0)), False)
sketch12.addGeometry(Part.LineSegment(V(18.5, -0.5, 0), V(12.5, -0.5, 0)), False)
sketch12.addConstraint(Sketcher.Constraint("Coincident", 0, 2, 1, 1))
sketch12.addConstraint(Sketcher.Constraint("Coincident", 1, 2, 2, 1))
sketch12.addConstraint(Sketcher.Constraint("Coincident", 2, 2, 3, 1))
sketch12.addConstraint(Sketcher.Constraint("Coincident", 3, 2, 0, 1))
sketch12.addConstraint(Sketcher.Constraint("Coincident", 4, 2, 5, 1))
sketch12.addConstraint(Sketcher.Constraint("Coincident", 5, 2, 6, 1))
sketch12.addConstraint(Sketcher.Constraint("Coincident", 6, 2, 7, 1))
sketch12.addConstraint(Sketcher.Constraint("Coincident", 7, 2, 4, 1))
sketch12.addConstraint(Sketcher.Constraint("Vertical", 0))
sketch12.addConstraint(Sketcher.Constraint("Horizontal", 1))
sketch12.addConstraint(Sketcher.Constraint("Vertical", 2))
sketch12.addConstraint(Sketcher.Constraint("Horizontal", 3))
sketch12.addConstraint(Sketcher.Constraint("Vertical", 4))
sketch12.addConstraint(Sketcher.Constraint("Horizontal", 5))
sketch12.addConstraint(Sketcher.Constraint("Vertical", 6))
sketch12.addConstraint(Sketcher.Constraint("Horizontal", 7))
sketch12.addConstraint(Sketcher.Constraint("Symmetric", 1, 2, 4, 2, -2))
sketch12.addConstraint(Sketcher.Constraint("Symmetric", 3, 2, 6, 2, -2))
sketch12.addConstraint(Sketcher.Constraint("DistanceX", 1, 1, 1, 2, 6.0))
sketch12.addConstraint(Sketcher.Constraint("DistanceY", 0, 2, 0, 1, 2.8))
sketch12.addConstraint(Sketcher.Constraint("DistanceX", 1, 2, 4, 2, 25.0))
sketch12.addConstraint(Sketcher.Constraint("DistanceY", 0, 2, -1, 1, 3.3))
sketch12.setExpression("Constraints[18]", "Params.sketch12_width")
sketch12.setExpression("Constraints[19]", "Params.sketch12_height")
pocket10 = body.newObject("PartDesign::Pocket", "Pocket009")
pocket10.Profile = sketch12
pocket10.Type = "ThroughAll"
doc.recompute()

fillet2 = body.newObject("PartDesign::Fillet", "Fillet001")
fillet2.Base = (pocket10, edges_at(pocket10, [
    (27, -17, 2.5),
    (27, 17, 2.5),
    (-27, -17, 2.5),
    (-27, 17, 2.5),
]))
fillet2.setExpression("Radius", "Params.fillet2_radius")

# Sketch on XY plane
sketch13 = body.newObject("Sketcher::SketchObject", "Sketch012")
sketch13.AttachmentSupport = (doc.getObject("XY_Plane"), [""])
sketch13.MapMode = "FlatFace"
sketch13.AttachmentOffset = App.Placement(V(0, 0, 3.5), App.Rotation())
sketch13.addGeometry(Part.Circle(V(-8.9, 0, 0), V(0, 0, 1), 2.5), False)
sketch13.addGeometry(Part.Circle(V(18.9, 0, 0), V(0, 0, 1), 2.5), False)
sketch13.addConstraint(Sketcher.Constraint("Equal", 0, 1))
sketch13.addConstraint(Sketcher.Constraint("PointOnObject", 0, 3, -1))
sketch13.addConstraint(Sketcher.Constraint("PointOnObject", 1, 3, -1))
sketch13.addConstraint(Sketcher.Constraint("Diameter", 0, 5.0))
sketch13.addConstraint(Sketcher.Constraint("DistanceX", 0, 3, -1, 1, 8.9))
sketch13.addConstraint(Sketcher.Constraint("DistanceX", -1, 1, 1, 3, 18.9))
sketch13.setExpression("Constraints[3]", "Params.sketch13_diameter")
pocket11 = body.newObject("PartDesign::Pocket", "Pocket010")
pocket11.Profile = sketch13
pocket11.setExpression("Length", "Params.pocket11_length")

doc.recompute()
